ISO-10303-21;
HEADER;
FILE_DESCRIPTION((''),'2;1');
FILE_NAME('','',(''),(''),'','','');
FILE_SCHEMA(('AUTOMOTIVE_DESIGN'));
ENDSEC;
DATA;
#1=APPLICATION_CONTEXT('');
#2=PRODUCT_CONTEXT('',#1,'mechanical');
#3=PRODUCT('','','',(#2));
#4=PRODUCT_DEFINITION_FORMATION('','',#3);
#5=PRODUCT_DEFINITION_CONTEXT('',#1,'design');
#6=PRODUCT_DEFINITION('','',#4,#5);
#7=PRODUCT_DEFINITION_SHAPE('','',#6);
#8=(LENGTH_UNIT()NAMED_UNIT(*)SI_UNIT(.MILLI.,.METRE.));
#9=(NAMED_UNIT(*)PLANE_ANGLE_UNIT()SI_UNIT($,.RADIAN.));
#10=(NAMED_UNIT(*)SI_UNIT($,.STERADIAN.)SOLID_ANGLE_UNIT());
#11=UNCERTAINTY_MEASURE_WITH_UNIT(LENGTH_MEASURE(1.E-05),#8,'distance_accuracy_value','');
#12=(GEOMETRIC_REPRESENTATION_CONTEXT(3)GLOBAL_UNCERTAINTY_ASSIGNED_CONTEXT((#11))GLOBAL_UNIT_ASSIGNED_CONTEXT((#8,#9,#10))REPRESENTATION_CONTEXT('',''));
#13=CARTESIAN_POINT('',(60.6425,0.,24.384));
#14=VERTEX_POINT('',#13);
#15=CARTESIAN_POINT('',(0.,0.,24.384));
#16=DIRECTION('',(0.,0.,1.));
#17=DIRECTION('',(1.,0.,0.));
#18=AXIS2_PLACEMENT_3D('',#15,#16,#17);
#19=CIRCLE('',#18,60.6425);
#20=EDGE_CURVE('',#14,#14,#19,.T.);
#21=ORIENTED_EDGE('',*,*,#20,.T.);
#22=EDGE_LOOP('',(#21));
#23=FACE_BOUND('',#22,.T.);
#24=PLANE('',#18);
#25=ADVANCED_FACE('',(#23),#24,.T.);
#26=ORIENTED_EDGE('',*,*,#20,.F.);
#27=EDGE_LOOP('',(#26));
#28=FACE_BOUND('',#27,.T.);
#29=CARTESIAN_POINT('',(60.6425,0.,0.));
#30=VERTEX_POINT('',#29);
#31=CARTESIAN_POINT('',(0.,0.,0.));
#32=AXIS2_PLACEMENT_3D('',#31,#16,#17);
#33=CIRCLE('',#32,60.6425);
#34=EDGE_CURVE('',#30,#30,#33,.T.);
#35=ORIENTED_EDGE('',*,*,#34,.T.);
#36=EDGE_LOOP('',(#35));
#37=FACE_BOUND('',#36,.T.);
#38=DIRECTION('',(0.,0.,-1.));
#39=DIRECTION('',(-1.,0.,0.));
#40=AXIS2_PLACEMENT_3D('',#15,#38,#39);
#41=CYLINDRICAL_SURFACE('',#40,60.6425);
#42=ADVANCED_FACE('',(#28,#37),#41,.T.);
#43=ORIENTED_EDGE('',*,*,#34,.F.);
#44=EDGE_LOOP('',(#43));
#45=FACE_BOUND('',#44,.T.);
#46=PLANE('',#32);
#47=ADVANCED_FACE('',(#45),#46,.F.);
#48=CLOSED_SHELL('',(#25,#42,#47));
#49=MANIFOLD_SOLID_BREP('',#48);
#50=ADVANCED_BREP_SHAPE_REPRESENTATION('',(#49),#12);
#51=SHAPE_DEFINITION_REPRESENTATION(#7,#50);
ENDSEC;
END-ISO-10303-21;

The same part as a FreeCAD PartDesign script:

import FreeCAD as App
import Part
import Sketcher
from FreeCAD import Vector
Q = App.Units.Quantity

doc = App.newDocument("Part")
body = doc.addObject("PartDesign::Body", "Body")

# Sketch on XY plane
sketch1 = doc.addObject("Sketcher::SketchObject", "Sketch")
body.addObject(sketch1)
sketch1.AttachmentSupport = (doc.XY_Plane, [""])
sketch1.MapMode = "FlatFace"
sketch1.addGeometry(Part.Circle(Vector(0, 0, 0), Vector(0, 0, 1), 61), False)
sketch1.addConstraint([
    Sketcher.Constraint("Coincident", 0, 3, -1, 1),
    Sketcher.Constraint("Diameter", 0, Q("4.775 in")),
])
pad1 = doc.addObject("PartDesign::Pad", "Pad")
body.addObject(pad1)
pad1.Profile = sketch1
pad1.Length = Q("0.96 in")

doc.recompute()
